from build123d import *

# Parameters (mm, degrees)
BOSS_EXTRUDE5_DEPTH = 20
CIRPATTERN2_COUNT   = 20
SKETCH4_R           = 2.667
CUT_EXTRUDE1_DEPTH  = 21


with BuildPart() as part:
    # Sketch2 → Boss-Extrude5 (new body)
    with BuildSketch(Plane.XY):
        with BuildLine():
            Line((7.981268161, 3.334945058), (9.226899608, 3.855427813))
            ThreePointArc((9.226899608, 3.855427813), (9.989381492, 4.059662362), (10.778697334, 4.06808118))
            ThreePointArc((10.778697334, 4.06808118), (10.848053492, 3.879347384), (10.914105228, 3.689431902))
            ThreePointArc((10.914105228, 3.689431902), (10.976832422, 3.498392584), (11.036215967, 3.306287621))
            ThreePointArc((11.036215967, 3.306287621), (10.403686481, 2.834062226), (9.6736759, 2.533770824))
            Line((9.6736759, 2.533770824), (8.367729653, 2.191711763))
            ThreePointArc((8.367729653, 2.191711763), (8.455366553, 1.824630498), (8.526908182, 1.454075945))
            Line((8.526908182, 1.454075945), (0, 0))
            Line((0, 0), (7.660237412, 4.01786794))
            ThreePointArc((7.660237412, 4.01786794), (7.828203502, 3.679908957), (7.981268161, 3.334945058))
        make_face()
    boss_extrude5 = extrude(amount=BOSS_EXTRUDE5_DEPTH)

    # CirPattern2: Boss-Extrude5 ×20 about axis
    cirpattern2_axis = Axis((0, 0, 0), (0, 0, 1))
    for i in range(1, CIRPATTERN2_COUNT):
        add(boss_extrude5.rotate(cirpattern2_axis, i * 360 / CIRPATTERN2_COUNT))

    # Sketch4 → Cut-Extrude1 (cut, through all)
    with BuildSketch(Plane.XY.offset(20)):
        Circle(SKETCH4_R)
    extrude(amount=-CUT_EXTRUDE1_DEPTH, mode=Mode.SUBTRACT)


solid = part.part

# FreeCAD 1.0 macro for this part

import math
import FreeCAD as App
import Part
import Sketcher
from FreeCAD import Vector

doc = App.newDocument("Part")
body = doc.addObject("PartDesign::Body", "Body")

# Sketch on XY plane
sketch1 = body.newObject("Sketcher::SketchObject", "Sketch")
sketch1.AttachmentSupport = (doc.getObject("XY_Plane"), [""])
sketch1.MapMode = "FlatFace"
sketch1.addGeometry([
    Part.LineSegment(Vector(9.23, 3.86, 0), Vector(7.98, 3.33, 0)),  # 0
    Part.ArcOfCircle(Part.Circle(Vector(0, 0, 0), Vector(0, 0, 1), 8.65), math.radians(22.68), math.radians(27.68)),  # 1
    Part.LineSegment(Vector(7.66, 4.02, 0), Vector(0, 0, 0)),  # 2
    Part.LineSegment(Vector(0, 0, 0), Vector(8.53, 1.45, 0)),  # 3
    Part.ArcOfCircle(Part.Circle(Vector(0, 0, 0), Vector(0, 0, 1), 8.65), math.radians(9.68), math.radians(14.68)),  # 4
    Part.LineSegment(Vector(8.37, 2.19, 0), Vector(9.67, 2.53, 0)),  # 5
    Part.ArcOfCircle(Part.Circle(Vector(8.85, 5.58, 0), Vector(0, 0, 1), 3.15), math.radians(-75), math.radians(-46)),  # 6
    Part.ArcOfCircle(Part.Circle(Vector(0, 0, 0), Vector(0, 0, 1), 11.52), math.radians(16.68), math.radians(18.68)),  # 7
    Part.ArcOfCircle(Part.Circle(Vector(0, 0, 0), Vector(0, 0, 1), 11.52), math.radians(18.68), math.radians(20.68)),  # 8
    Part.ArcOfCircle(Part.Circle(Vector(10.42, 0.94, 0), Vector(0, 0, 1), 3.15), math.radians(83), math.radians(112)),  # 9
], False)
sketch1.addConstraint([
    Sketcher.Constraint("Coincident", 0, 2, 1, 1),
    Sketcher.Constraint("Coincident", 1, 2, 2, 1),
    Sketcher.Constraint("Coincident", 2, 2, 3, 1),
    Sketcher.Constraint("Coincident", 3, 2, 4, 1),
    Sketcher.Constraint("Coincident", 4, 2, 5, 1),
    Sketcher.Constraint("Coincident", 5, 2, 6, 1),
    Sketcher.Constraint("Coincident", 6, 2, 7, 1),
    Sketcher.Constraint("Tangent", 7, 2, 8, 1),
    Sketcher.Constraint("Coincident", 8, 2, 9, 1),
    Sketcher.Constraint("Coincident", 9, 2, 0, 1),
    Sketcher.Constraint("Coincident", 1, 3, -1, 1),
    Sketcher.Constraint("Coincident", 4, 3, -1, 1),
    Sketcher.Constraint("Coincident", 7, 3, -1, 1),
    Sketcher.Constraint("Coincident", 2, 2, -1, 1),
    Sketcher.Constraint("Equal", 1, 4),
    Sketcher.Constraint("Equal", 7, 8),
    Sketcher.Constraint("Equal", 6, 9),
    Sketcher.Constraint("Equal", 0, 5),
    Sketcher.Constraint("Radius", 1, 8.65),
    Sketcher.Constraint("Distance", 0, 1.35),
    Sketcher.Constraint("Radius", 6, 3.152561),
    Sketcher.Constraint("Radius", 7, 11.520834),
    Sketcher.Constraint("DistanceX", -1, 1, 9, 3, 10.417398),
    Sketcher.Constraint("DistanceX", -1, 1, 9, 2, 9.2269),
    Sketcher.Constraint("DistanceX", 3, 2, 6, 3, 0.3219),
    Sketcher.Constraint("DistanceX", -1, 1, 6, 3, 8.848809),
    Sketcher.Constraint("DistanceX", -1, 1, 0, 2, 7.981268),
    Sketcher.Constraint("DistanceX", -1, 1, 4, 2, 8.36773),
    Sketcher.Constraint("DistanceY", -1, 1, 5, 2, 2.533771),
    Sketcher.Constraint("DistanceY", -1, 1, 7, 2, 3.689432),
    Sketcher.Constraint("DistanceX", 1, 2, 0, 2, 0.321031),
])
pad1 = body.newObject("PartDesign::Pad", "Pad")
pad1.Profile = sketch1
pad1.Length = 20
doc.recompute()

polarpattern = body.newObject("PartDesign::PolarPattern", "PolarPattern")
polarpattern.Originals = [pad1]
polarpattern.Axis = (doc.getObject("Z_Axis"), [""])
polarpattern.Angle = 360
polarpattern.Occurrences = 20
body.Tip = polarpattern

# Sketch on XY plane
sketch2 = body.newObject("Sketcher::SketchObject", "Sketch001")
sketch2.AttachmentSupport = (doc.getObject("XY_Plane"), [""])
sketch2.MapMode = "FlatFace"
sketch2.AttachmentOffset = App.Placement(Vector(0, 0, 20), App.Rotation())
sketch2.addGeometry(Part.Circle(Vector(0, 0, 0), Vector(0, 0, 1), 2.7), False)
sketch2.addConstraint([
    Sketcher.Constraint("Coincident", 0, 3, -1, 1),
    Sketcher.Constraint("Diameter", 0, 5.334),
])
pocket1 = body.newObject("PartDesign::Pocket", "Pocket")
pocket1.Profile = sketch2
pocket1.Type = "ThroughAll"

doc.recompute()
